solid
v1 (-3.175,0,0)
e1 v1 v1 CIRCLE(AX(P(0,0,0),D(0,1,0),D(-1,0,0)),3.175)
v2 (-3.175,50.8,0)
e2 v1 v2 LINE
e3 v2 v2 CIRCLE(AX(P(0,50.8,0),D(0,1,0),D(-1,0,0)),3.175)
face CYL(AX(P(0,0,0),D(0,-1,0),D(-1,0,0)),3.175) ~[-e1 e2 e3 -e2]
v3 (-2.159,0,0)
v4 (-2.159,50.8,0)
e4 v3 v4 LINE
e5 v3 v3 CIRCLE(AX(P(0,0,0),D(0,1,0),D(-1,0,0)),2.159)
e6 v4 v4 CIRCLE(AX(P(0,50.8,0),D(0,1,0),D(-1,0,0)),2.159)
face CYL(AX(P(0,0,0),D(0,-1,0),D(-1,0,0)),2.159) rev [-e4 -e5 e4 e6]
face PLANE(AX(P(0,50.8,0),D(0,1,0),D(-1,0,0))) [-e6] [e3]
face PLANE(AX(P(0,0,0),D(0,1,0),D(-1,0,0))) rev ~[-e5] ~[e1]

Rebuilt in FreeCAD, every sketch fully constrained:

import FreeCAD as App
import Part
import Sketcher

V = App.Vector
Q = App.Units.Quantity

doc = App.newDocument("Part")
body = doc.addObject("PartDesign::Body", "Body")

sketch1 = body.newObject("Sketcher::SketchObject", "Sketch")
sketch1.AttachmentSupport = (doc.getObject("XZ_Plane"), [""])
sketch1.MapMode = "FlatFace"
sketch1.addGeometry([
    Part.Circle(V(0, 0, 0), V(0, 0, 1), 3.175),
    Part.Circle(V(0, 0, 0), V(0, 0, 1), 2.159),
], False)
sketch1.addConstraint([
    Sketcher.Constraint("Coincident", 0, 3, -1, 1),
    Sketcher.Constraint("Coincident", 1, 3, -1, 1),
    Sketcher.Constraint("Diameter", 0, Q("0.25 in")),
    Sketcher.Constraint("Diameter", 1, Q("0.17 in")),
])
pad1 = body.newObject("PartDesign::Pad", "Pad")
pad1.Profile = sketch1
pad1.Length = Q("2 in")
pad1.Reversed = True

doc.recompute()
